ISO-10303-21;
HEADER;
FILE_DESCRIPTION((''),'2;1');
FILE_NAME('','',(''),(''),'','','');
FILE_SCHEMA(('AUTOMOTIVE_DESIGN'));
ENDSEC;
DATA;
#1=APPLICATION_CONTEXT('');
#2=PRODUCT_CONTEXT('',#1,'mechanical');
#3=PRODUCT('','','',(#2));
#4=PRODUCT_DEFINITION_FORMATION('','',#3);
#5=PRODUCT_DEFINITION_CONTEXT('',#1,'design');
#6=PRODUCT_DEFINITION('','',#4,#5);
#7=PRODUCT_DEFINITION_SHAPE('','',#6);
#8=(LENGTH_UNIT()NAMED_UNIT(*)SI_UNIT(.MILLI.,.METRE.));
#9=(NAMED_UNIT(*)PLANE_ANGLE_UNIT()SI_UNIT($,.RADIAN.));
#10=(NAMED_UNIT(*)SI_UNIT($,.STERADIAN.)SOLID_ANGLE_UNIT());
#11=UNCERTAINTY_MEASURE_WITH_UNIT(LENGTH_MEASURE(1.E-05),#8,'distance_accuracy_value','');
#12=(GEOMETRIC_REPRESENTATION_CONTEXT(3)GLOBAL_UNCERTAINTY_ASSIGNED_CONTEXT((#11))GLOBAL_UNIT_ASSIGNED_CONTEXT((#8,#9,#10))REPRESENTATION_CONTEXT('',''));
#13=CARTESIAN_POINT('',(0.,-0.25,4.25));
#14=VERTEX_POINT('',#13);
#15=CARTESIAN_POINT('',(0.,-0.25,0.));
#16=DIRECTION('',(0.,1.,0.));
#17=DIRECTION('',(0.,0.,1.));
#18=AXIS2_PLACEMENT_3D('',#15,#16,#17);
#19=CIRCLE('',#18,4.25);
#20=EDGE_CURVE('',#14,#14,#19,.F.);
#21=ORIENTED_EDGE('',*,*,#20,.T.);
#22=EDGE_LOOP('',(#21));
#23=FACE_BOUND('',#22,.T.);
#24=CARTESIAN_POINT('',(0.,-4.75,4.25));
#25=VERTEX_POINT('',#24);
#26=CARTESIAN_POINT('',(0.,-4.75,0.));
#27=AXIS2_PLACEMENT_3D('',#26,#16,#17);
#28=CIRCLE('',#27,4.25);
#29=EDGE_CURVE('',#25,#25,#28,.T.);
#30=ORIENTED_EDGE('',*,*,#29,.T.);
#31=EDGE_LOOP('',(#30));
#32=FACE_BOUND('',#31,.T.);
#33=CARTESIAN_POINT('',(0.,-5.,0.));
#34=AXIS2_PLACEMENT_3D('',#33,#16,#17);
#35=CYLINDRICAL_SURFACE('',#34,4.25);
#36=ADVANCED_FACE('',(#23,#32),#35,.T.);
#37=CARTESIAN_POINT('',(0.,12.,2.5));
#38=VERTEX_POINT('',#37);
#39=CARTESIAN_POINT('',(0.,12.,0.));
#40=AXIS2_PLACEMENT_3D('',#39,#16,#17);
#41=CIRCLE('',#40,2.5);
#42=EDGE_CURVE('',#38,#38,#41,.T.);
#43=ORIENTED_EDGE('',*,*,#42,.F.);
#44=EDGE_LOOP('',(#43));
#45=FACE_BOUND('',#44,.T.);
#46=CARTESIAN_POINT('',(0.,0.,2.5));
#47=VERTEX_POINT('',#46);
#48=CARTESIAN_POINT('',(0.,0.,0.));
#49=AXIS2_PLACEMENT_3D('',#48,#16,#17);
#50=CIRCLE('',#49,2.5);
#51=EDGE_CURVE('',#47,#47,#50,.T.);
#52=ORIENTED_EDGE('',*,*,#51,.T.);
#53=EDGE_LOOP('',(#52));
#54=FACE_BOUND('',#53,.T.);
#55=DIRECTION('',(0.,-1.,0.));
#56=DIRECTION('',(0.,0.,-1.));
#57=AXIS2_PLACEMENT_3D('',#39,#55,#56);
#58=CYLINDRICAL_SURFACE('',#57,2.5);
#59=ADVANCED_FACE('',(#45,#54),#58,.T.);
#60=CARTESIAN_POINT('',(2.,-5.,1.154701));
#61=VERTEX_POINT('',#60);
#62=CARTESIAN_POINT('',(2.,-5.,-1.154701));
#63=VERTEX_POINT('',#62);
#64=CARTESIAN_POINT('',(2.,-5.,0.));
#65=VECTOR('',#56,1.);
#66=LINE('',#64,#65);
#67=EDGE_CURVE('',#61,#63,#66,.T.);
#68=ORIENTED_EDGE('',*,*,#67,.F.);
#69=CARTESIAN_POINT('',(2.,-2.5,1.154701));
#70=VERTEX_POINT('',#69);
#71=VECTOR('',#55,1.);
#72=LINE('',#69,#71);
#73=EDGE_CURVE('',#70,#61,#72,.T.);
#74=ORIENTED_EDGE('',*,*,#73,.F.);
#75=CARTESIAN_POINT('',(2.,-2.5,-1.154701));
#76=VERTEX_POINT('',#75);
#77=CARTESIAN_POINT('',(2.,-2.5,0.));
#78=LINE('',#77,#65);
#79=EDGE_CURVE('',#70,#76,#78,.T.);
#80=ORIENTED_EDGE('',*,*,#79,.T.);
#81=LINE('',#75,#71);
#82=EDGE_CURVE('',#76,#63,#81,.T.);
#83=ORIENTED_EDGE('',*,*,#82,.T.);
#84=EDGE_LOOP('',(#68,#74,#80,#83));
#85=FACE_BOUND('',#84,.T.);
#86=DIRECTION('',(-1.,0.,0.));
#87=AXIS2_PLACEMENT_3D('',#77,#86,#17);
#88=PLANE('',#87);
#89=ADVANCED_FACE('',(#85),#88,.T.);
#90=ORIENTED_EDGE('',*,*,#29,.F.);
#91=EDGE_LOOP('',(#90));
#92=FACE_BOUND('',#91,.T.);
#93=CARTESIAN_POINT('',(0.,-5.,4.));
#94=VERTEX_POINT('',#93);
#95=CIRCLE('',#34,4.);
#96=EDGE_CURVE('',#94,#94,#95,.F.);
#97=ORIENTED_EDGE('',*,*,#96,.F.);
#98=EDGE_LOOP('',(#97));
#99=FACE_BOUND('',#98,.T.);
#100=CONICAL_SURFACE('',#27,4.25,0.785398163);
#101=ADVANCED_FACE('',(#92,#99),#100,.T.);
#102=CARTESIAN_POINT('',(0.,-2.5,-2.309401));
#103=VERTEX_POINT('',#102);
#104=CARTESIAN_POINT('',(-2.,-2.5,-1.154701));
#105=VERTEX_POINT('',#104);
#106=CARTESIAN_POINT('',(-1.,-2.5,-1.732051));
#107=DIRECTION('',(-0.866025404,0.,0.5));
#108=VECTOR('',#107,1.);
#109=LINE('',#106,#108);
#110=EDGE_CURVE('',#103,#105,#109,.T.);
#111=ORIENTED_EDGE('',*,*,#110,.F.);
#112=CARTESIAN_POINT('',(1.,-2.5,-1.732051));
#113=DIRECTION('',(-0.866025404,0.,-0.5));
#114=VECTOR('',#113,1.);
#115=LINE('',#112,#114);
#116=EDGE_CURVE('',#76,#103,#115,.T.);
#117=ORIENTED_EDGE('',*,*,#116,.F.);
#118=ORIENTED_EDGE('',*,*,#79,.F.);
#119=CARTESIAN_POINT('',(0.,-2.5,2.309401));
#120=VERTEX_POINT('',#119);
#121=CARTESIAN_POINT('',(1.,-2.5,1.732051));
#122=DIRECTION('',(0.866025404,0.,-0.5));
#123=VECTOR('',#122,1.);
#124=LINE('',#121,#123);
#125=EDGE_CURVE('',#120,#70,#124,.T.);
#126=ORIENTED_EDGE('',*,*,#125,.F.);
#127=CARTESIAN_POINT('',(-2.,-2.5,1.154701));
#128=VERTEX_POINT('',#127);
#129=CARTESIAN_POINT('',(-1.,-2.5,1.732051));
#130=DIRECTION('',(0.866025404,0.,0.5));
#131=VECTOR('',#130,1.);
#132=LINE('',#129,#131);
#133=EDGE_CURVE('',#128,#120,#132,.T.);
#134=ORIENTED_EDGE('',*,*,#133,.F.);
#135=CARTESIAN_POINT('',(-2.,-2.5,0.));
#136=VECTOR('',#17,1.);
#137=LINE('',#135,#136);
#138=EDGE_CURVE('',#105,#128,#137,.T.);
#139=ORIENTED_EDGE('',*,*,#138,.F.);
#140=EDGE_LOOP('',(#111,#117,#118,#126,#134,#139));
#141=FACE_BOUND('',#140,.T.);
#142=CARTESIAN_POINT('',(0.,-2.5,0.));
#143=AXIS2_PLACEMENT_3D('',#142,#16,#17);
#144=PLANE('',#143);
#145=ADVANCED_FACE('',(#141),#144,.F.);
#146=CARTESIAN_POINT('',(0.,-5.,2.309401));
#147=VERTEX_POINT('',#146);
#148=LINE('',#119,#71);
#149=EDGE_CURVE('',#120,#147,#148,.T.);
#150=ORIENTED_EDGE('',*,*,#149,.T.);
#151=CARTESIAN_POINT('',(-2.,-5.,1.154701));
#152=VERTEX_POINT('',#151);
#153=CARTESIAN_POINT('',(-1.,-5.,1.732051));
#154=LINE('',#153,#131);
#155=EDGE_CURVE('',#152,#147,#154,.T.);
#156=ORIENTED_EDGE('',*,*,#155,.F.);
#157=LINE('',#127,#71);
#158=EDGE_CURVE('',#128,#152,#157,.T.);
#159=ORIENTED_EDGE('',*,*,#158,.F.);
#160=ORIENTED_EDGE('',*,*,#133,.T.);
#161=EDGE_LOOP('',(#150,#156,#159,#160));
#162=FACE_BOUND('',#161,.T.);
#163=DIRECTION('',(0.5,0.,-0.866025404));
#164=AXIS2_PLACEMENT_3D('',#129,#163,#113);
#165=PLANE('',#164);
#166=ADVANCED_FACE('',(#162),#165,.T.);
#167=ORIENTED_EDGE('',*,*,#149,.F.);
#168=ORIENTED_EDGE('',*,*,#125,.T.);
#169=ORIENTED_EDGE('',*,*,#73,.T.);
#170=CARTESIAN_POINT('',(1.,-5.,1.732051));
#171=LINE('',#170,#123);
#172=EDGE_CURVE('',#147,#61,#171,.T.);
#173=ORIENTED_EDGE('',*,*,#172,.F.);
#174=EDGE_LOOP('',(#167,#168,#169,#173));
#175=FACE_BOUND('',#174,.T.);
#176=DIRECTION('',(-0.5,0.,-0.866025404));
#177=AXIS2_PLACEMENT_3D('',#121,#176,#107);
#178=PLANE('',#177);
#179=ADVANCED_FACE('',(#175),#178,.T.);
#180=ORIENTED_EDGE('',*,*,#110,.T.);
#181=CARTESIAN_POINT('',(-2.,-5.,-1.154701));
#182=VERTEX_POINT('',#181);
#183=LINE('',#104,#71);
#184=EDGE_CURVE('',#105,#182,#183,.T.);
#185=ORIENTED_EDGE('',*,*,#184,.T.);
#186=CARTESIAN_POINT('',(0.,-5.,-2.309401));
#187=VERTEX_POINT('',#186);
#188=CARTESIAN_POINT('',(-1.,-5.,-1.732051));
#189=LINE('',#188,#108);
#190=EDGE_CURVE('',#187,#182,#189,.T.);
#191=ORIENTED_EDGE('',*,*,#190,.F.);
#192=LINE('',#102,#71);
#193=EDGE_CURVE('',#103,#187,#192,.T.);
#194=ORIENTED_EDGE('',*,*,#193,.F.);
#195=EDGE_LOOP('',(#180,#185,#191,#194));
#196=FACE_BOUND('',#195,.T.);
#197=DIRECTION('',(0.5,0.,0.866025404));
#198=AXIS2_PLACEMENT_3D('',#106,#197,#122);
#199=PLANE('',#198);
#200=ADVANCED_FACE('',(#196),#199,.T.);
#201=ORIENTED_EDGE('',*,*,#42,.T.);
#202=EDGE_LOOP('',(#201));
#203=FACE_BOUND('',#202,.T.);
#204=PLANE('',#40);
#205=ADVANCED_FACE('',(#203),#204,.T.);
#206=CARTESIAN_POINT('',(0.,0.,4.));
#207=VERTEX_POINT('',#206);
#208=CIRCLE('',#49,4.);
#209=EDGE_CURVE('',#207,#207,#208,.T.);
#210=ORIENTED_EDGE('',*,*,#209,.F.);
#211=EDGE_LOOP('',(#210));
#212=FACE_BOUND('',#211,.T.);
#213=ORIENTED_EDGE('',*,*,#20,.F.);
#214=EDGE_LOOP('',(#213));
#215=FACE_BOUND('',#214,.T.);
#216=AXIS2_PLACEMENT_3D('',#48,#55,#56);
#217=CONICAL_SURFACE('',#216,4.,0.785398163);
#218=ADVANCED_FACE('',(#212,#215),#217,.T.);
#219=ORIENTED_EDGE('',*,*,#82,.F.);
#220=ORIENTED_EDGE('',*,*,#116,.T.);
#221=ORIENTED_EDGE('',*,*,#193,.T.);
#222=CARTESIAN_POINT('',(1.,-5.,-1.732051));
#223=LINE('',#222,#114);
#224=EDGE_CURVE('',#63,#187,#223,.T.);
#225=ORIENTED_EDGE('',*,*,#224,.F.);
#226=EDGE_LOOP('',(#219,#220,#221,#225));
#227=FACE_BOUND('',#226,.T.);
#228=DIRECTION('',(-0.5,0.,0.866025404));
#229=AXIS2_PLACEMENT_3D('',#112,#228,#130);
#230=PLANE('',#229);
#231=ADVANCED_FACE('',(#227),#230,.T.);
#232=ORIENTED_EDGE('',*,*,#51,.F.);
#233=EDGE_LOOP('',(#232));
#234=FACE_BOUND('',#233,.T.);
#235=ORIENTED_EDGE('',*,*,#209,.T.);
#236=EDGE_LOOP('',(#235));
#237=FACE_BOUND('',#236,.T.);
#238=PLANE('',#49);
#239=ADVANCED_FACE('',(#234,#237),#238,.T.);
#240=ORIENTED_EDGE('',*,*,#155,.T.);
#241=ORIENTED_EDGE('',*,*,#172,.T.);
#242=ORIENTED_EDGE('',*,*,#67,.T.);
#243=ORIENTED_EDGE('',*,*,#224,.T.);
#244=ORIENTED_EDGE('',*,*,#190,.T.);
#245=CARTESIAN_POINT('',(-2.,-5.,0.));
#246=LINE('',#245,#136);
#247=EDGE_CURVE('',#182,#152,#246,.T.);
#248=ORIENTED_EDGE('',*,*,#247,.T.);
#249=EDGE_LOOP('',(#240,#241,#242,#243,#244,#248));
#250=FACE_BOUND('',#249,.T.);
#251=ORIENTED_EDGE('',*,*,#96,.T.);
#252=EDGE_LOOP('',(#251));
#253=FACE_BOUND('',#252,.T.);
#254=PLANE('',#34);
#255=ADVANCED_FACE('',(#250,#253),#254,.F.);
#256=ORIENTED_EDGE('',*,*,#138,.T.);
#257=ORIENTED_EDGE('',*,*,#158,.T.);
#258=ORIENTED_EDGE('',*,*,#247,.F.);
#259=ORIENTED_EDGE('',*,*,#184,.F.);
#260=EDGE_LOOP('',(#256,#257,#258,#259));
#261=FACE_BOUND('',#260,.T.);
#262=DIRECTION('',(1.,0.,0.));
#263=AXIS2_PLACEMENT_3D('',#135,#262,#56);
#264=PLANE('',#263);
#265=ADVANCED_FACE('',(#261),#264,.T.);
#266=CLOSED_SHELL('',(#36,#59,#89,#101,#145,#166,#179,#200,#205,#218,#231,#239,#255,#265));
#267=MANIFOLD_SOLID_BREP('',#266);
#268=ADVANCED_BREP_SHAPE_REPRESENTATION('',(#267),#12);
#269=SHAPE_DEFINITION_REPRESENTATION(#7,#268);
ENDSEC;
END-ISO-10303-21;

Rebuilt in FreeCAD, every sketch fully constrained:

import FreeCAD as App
import Part
import Sketcher

V = App.Vector
Q = App.Units.Quantity


def edges_at(feature, points):
    """Names of the edges that pass closest to the given points."""
    edges = feature.Shape.Edges
    near = lambda p: min(range(len(edges)), key=lambda i: edges[i].distToShape(Part.Vertex(*p))[0])
    return sorted({f"Edge{near(p) + 1}" for p in points})

doc = App.newDocument("Part")
params = doc.addObject("Spreadsheet::Sheet", "Params")
for row, (alias, value) in enumerate([
    ("sketch1_diameter", "8.5 mm"),
    ("pad1_length", "5 mm"),
    ("sketch2_diameter", "5 mm"),
    ("pad2_length", "12 mm"),
    ("pocket1_length", "2.5 mm"),
    ("chamfer_size", "0.25 mm"),
], start=1):
    params.set(f"A{row}", alias)
    params.set(f"B{row}", "=" + value)
    params.setAlias(f"B{row}", alias)

body = doc.addObject("PartDesign::Body", "Body")

# Sketch on XZ plane
sketch1 = doc.addObject("Sketcher::SketchObject", "Sketch")
body.addObject(sketch1)
sketch1.AttachmentSupport = (doc.XZ_Plane, [""])
sketch1.MapMode = "FlatFace"
sketch1.addGeometry(Part.Circle(V(0, 0, 0), V(0, 0, 1), 4.2), False)
sketch1.addConstraint(Sketcher.Constraint("Coincident", 0, 3, -1, 1))
sketch1.addConstraint(Sketcher.Constraint("Diameter", 0, Q("8.5 mm")))
sketch1.setExpression("Constraints[1]", "Params.sketch1_diameter")
pad1 = doc.addObject("PartDesign::Pad", "Pad")
body.addObject(pad1)
pad1.Profile = sketch1
pad1.setExpression("Length", "Params.pad1_length")

# Sketch on XZ plane
sketch2 = doc.addObject("Sketcher::SketchObject", "Sketch001")
body.addObject(sketch2)
sketch2.AttachmentSupport = (doc.XZ_Plane, [""])
sketch2.MapMode = "FlatFace"
sketch2.addGeometry(Part.Circle(V(0, 0, 0), V(0, 0, 1), 2.5), False)
sketch2.addConstraint(Sketcher.Constraint("Coincident", 0, 3, -1, 1))
sketch2.addConstraint(Sketcher.Constraint("Diameter", 0, Q("5 mm")))
sketch2.setExpression("Constraints[1]", "Params.sketch2_diameter")
pad2 = doc.addObject("PartDesign::Pad", "Pad001")
body.addObject(pad2)
pad2.Profile = sketch2
pad2.setExpression("Length", "Params.pad2_length")
pad2.Reversed = True

# Sketch on XZ plane
sketch3 = doc.addObject("Sketcher::SketchObject", "Sketch002")
body.addObject(sketch3)
sketch3.AttachmentSupport = (doc.XZ_Plane, [""])
sketch3.MapMode = "FlatFace"
sketch3.AttachmentOffset = App.Placement(V(0, 0, 5), App.Rotation())
sketch3.addGeometry(Part.LineSegment(V(2, 1.2, 0), V(2, -1.2, 0)), False)
sketch3.addGeometry(Part.LineSegment(V(2, -1.2, 0), V(0, -2.3, 0)), False)
sketch3.addGeometry(Part.LineSegment(V(0, -2.3, 0), V(-2, -1.2, 0)), False)
sketch3.addGeometry(Part.LineSegment(V(-2, -1.2, 0), V(-2, 1.2, 0)), False)
sketch3.addGeometry(Part.LineSegment(V(-2, 1.2, 0), V(0, 2.3, 0)), False)
sketch3.addGeometry(Part.LineSegment(V(0, 2.3, 0), V(2, 1.2, 0)), False)
sketch3.addConstraint(Sketcher.Constraint("Coincident", 0, 2, 1, 1))
sketch3.addConstraint(Sketcher.Constraint("Coincident", 1, 2, 2, 1))
sketch3.addConstraint(Sketcher.Constraint("Coincident", 2, 2, 3, 1))
sketch3.addConstraint(Sketcher.Constraint("Coincident", 3, 2, 4, 1))
sketch3.addConstraint(Sketcher.Constraint("Coincident", 4, 2, 5, 1))
sketch3.addConstraint(Sketcher.Constraint("Coincident", 5, 2, 0, 1))
sketch3.addConstraint(Sketcher.Constraint("Vertical", 0))
sketch3.addConstraint(Sketcher.Constraint("Vertical", 3))
sketch3.addConstraint(Sketcher.Constraint("Symmetric", 0, 2, 3, 2, -1, 1))
sketch3.addConstraint(Sketcher.Constraint("Symmetric", 1, 2, 4, 2, -1, 1))
sketch3.addConstraint(Sketcher.Constraint("PointOnObject", 1, 2, -2))
sketch3.addConstraint(Sketcher.Constraint("Parallel", 2, 5))
sketch3.addConstraint(Sketcher.Constraint("Horizontal", 0, 2, 2, 2))
sketch3.addConstraint(Sketcher.Constraint("Angle", 1, Q("-150 deg")))
sketch3.addConstraint(Sketcher.Constraint("DistanceX", -1, 1, 0, 2, Q("2 mm")))
sketch3.addConstraint(Sketcher.Constraint("DistanceY", 0, 2, 0, 1, Q("2.309401 mm")))
pocket1 = doc.addObject("PartDesign::Pocket", "Pocket")
body.addObject(pocket1)
pocket1.Profile = sketch3
pocket1.setExpression("Length", "Params.pocket1_length")
doc.recompute()

chamfer = doc.addObject("PartDesign::Chamfer", "Chamfer")
body.addObject(chamfer)
chamfer.Base = (pocket1, edges_at(pocket1, [(0, 0, -4.25), (0, -5, -4.25)]))
chamfer.setExpression("Size", "Params.chamfer_size")

doc.recompute()
